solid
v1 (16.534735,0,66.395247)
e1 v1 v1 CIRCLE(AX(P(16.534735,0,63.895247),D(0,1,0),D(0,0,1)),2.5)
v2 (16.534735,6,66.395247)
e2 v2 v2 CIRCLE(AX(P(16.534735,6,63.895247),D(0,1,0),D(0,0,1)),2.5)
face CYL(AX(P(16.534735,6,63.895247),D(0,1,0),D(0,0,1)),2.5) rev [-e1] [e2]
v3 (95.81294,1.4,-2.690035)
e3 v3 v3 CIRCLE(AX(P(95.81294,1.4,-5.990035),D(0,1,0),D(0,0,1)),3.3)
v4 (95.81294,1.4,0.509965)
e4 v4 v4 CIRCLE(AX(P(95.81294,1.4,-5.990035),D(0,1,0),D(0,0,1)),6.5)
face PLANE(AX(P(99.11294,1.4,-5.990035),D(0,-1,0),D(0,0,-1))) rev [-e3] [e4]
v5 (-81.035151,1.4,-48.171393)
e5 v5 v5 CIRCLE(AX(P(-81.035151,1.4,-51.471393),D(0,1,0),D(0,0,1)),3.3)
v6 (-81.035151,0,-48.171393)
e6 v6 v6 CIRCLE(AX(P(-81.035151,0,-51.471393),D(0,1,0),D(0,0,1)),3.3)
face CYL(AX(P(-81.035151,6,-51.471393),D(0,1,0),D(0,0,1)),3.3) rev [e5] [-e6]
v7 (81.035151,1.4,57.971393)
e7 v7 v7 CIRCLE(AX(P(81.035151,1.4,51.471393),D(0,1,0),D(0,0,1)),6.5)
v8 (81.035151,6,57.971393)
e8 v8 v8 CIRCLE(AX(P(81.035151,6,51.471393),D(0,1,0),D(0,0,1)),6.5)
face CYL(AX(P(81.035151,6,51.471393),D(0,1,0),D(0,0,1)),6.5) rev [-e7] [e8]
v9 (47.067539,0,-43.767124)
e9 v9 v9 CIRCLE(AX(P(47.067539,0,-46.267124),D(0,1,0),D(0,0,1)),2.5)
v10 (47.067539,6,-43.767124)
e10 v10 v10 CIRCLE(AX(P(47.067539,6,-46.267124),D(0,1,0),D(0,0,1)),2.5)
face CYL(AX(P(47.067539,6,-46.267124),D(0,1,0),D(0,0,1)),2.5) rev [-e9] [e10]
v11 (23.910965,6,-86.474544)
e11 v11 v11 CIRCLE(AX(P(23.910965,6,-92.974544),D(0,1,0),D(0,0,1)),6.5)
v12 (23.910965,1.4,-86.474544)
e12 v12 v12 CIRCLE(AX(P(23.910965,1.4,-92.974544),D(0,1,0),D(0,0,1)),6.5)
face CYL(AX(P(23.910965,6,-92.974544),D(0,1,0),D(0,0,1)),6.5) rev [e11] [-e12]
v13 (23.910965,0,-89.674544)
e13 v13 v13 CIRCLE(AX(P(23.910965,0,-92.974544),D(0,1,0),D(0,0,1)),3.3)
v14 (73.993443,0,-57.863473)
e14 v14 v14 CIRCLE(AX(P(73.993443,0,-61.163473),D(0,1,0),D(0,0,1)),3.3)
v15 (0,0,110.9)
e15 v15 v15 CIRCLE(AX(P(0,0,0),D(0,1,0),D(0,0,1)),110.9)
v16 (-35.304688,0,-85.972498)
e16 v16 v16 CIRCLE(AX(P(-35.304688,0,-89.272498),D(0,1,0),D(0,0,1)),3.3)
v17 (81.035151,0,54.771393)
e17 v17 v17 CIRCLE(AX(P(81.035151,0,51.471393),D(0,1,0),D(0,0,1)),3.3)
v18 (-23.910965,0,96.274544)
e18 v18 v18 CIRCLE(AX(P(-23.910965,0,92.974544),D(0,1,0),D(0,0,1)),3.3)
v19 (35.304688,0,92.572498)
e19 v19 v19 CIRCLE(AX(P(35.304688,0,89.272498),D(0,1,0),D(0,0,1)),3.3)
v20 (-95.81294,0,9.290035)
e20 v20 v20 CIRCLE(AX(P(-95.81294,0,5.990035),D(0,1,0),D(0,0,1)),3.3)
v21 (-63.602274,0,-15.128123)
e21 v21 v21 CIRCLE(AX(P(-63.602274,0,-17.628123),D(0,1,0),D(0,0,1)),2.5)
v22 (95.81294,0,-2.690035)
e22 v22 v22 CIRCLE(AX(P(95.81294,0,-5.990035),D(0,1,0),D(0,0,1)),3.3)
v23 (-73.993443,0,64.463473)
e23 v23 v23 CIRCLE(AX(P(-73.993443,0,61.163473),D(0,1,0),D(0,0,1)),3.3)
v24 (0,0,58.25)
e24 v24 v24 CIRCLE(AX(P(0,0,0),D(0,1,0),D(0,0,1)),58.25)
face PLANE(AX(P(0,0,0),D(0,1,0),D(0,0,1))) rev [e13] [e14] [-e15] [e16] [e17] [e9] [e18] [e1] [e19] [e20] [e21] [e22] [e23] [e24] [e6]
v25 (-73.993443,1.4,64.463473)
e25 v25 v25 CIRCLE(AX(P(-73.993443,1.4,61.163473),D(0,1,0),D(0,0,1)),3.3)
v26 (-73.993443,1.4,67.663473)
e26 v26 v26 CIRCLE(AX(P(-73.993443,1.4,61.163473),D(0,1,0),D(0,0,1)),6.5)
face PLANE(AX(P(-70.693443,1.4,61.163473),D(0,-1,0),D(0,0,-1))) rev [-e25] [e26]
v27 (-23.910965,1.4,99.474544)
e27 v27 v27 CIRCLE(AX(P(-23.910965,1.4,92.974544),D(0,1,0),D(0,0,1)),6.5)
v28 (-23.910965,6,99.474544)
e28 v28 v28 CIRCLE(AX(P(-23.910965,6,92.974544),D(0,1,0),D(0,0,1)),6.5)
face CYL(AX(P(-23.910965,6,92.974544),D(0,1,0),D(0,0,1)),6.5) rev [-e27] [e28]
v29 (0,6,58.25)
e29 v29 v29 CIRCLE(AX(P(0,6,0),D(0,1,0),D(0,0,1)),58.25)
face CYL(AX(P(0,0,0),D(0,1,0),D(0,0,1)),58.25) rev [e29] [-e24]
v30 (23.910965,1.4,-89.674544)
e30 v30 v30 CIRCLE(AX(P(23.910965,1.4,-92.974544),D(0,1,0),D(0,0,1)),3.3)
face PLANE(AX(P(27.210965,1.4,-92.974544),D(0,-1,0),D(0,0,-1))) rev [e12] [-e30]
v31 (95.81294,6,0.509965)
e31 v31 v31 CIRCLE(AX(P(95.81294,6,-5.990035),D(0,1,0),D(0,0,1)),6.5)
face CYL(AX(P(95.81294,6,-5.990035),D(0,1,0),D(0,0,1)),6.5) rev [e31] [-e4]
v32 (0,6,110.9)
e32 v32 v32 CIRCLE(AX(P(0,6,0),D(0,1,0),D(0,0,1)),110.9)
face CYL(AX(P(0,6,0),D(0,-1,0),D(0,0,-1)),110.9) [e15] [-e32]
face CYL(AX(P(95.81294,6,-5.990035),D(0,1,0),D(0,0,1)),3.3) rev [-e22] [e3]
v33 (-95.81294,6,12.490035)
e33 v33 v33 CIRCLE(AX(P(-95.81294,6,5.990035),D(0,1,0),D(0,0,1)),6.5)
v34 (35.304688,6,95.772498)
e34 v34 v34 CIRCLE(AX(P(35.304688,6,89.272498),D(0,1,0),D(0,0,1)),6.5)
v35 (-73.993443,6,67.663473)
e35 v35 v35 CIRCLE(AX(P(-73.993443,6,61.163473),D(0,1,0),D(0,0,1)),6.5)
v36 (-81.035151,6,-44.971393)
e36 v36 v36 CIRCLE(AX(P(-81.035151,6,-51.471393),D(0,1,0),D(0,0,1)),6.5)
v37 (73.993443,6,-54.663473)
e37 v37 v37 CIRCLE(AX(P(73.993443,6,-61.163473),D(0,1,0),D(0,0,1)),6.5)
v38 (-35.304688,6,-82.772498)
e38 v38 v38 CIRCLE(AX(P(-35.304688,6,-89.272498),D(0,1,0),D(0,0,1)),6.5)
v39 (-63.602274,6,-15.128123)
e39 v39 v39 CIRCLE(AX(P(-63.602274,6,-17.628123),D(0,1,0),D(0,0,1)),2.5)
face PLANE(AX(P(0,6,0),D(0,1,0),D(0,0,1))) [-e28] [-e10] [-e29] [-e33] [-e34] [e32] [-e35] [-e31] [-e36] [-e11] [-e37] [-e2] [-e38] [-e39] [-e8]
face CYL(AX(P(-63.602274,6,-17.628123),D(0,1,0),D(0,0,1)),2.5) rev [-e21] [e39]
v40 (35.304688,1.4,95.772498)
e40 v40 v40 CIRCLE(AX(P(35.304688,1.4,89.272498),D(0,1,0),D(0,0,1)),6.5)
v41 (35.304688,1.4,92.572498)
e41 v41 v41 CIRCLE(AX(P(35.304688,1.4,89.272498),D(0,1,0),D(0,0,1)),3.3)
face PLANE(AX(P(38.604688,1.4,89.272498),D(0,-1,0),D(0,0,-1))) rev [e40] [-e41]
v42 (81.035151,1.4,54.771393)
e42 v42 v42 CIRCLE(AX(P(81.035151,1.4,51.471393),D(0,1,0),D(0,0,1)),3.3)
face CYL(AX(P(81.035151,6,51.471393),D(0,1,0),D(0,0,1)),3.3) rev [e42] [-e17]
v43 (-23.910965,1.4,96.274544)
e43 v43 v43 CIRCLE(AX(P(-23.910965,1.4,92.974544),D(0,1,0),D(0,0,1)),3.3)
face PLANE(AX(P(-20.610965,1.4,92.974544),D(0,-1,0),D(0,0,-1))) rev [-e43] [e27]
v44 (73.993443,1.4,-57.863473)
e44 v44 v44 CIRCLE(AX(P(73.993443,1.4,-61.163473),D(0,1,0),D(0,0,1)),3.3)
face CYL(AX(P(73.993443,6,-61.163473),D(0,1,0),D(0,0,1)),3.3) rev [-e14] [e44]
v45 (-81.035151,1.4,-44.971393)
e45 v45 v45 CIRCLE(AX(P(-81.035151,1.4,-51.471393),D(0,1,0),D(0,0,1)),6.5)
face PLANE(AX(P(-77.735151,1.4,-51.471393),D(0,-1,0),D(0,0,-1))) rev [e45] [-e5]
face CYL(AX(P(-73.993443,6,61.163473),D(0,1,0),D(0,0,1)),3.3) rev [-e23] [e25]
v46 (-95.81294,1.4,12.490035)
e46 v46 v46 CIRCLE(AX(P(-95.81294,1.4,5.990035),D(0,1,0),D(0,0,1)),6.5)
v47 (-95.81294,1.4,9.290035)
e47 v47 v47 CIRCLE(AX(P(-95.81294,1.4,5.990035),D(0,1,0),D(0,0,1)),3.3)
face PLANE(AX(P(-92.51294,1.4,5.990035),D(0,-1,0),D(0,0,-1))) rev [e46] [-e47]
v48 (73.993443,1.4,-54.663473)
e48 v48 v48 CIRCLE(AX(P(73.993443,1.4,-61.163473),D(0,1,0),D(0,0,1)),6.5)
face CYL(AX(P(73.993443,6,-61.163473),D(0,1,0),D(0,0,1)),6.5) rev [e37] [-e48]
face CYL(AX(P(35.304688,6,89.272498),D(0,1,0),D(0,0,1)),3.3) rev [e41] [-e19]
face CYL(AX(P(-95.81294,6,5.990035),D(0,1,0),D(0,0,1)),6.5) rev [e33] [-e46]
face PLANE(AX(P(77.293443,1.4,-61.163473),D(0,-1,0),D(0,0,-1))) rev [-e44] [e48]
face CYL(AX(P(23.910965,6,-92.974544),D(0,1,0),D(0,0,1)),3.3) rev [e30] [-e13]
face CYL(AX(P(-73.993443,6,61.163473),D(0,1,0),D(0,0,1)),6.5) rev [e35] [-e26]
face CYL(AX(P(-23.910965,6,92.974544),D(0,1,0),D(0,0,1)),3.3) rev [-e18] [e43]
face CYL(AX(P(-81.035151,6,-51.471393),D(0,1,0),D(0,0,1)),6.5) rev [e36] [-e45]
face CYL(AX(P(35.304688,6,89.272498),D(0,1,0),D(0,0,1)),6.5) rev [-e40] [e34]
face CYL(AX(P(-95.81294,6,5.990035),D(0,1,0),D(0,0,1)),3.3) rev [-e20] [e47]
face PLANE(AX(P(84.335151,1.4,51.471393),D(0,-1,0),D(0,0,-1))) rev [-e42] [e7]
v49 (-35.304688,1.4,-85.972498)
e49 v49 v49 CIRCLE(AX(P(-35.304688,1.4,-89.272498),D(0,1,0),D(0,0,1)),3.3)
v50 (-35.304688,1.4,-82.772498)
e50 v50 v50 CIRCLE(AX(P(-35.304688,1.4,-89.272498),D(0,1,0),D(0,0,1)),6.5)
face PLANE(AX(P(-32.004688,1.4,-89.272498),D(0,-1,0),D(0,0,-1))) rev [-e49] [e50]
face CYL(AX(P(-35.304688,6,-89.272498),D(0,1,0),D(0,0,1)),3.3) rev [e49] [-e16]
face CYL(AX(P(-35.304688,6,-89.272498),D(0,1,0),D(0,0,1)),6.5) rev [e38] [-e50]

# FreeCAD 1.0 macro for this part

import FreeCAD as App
import Part
import Sketcher

V = App.Vector
Q = App.Units.Quantity

doc = App.newDocument("Part")
params = doc.addObject("Spreadsheet::Sheet", "Params")
for row, (alias, value) in enumerate([
    ("sketch1_diameter", "221.8 mm"),
    ("pad1_length", "6 mm"),
    ("sketch2_diameter", "116.5 mm"),
    ("pocket1_length", "6 mm"),
    ("sketch3_diameter", "6.6 mm"),
    ("hole_diameter", "6.6 mm"),
    ("hole_cbore_diameter", "13 mm"),
    ("hole_cbore_depth", "4.6 mm"),
    ("sketch4_diameter", "5 mm"),
    ("hole2_diameter", "5 mm"),
], start=1):
    params.set(f"A{row}", alias)
    params.set(f"B{row}", "=" + value)
    params.setAlias(f"B{row}", alias)

body = doc.addObject("PartDesign::Body", "Body")

sketch1 = body.newObject("Sketcher::SketchObject", "Sketch")
sketch1.AttachmentSupport = (doc.getObject("XZ_Plane"), [""])
sketch1.MapMode = "FlatFace"
sketch1.addGeometry(Part.Circle(V(0, 0, 0), V(0, 0, 1), 110.9), False)
sketch1.addConstraint([
    Sketcher.Constraint("Coincident", 0, 3, -1, 1),
    Sketcher.Constraint("Diameter", 0, Q("221.8 mm")),
])
sketch1.setExpression("Constraints[1]", "Params.sketch1_diameter")
pad1 = body.newObject("PartDesign::Pad", "Pad")
pad1.Profile = sketch1
pad1.setExpression("Length", "Params.pad1_length")
pad1.Reversed = True

sketch2 = body.newObject("Sketcher::SketchObject", "Sketch001")
sketch2.AttachmentSupport = (doc.getObject("XZ_Plane"), [""])
sketch2.MapMode = "FlatFace"
sketch2.AttachmentOffset = App.Placement(V(0, 0, -6), App.Rotation())
sketch2.addGeometry(Part.Circle(V(0, 0, 0), V(0, 0, 1), 58.25), False)
sketch2.addConstraint([
    Sketcher.Constraint("Coincident", 0, 3, -1, 1),
    Sketcher.Constraint("Diameter", 0, Q("116.5 mm")),
])
sketch2.setExpression("Constraints[1]", "Params.sketch2_diameter")
pocket1 = body.newObject("PartDesign::Pocket", "Pocket")
pocket1.Profile = sketch2
pocket1.setExpression("Length", "Params.pocket1_length")
pocket1.Reversed = True

sketch3 = body.newObject("Sketcher::SketchObject", "Sketch002")
sketch3.AttachmentSupport = (doc.getObject("XZ_Plane"), [""])
sketch3.MapMode = "FlatFace"
sketch3.AttachmentOffset = App.Placement(V(0, 0, -6), App.Rotation())
sketch3.addGeometry([
    Part.Circle(V(-35.304688, -89.272498, 0), V(0, 0, 1), 3.3),
    Part.Circle(V(23.910965, -92.974544, 0), V(0, 0, 1), 3.3),
    Part.Circle(V(73.993443, -61.163473, 0), V(0, 0, 1), 3.3),
    Part.Circle(V(95.81294, -5.990035, 0), V(0, 0, 1), 3.3),
    Part.Circle(V(81.035151, 51.471393, 0), V(0, 0, 1), 3.3),
    Part.Circle(V(35.304688, 89.272498, 0), V(0, 0, 1), 3.3),
    Part.Circle(V(-23.910965, 92.974544, 0), V(0, 0, 1), 3.3),
    Part.Circle(V(-73.993443, 61.163473, 0), V(0, 0, 1), 3.3),
    Part.Circle(V(-95.81294, 5.990035, 0), V(0, 0, 1), 3.3),
    Part.Circle(V(-81.035151, -51.471393, 0), V(0, 0, 1), 3.3),
    Part.Circle(V(0, 0, 0), V(0, 0, 1), 3.3),
], False)
sketch3.addConstraint([
    Sketcher.Constraint("Coincident", 10, 3, -1, 1),
    Sketcher.Constraint("Equal", 0, 1),
    Sketcher.Constraint("Equal", 1, 2),
    Sketcher.Constraint("Equal", 2, 3),
    Sketcher.Constraint("Equal", 3, 4),
    Sketcher.Constraint("Equal", 4, 5),
    Sketcher.Constraint("Equal", 5, 6),
    Sketcher.Constraint("Equal", 6, 7),
    Sketcher.Constraint("Equal", 7, 8),
    Sketcher.Constraint("Equal", 8, 9),
    Sketcher.Constraint("Equal", 9, 10),
    Sketcher.Constraint("Symmetric", 0, 3, 5, 3, -1, 1),
    Sketcher.Constraint("Symmetric", 1, 3, 6, 3, -1, 1),
    Sketcher.Constraint("Symmetric", 2, 3, 7, 3, -1, 1),
    Sketcher.Constraint("Symmetric", 3, 3, 8, 3, -1, 1),
    Sketcher.Constraint("Symmetric", 4, 3, 9, 3, -1, 1),
    Sketcher.Constraint("Diameter", 0, Q("6.6 mm")),
    Sketcher.Constraint("DistanceY", 0, 3, -1, 1, Q("89.272498 mm")),
    Sketcher.Constraint("DistanceX", 0, 3, -1, 1, Q("35.304688 mm")),
    Sketcher.Constraint("DistanceX", -1, 1, 3, 3, Q("95.81294 mm")),
    Sketcher.Constraint("DistanceX", -1, 1, 4, 3, Q("81.035151 mm")),
    Sketcher.Constraint("DistanceY", 1, 3, 2, 3, Q("31.81107 mm")),
    Sketcher.Constraint("DistanceX", 0, 3, 2, 3, Q("109.298131 mm")),
    Sketcher.Constraint("DistanceY", 2, 3, 3, 3, Q("55.173438 mm")),
    Sketcher.Constraint("DistanceY", 0, 3, 4, 3, Q("140.743892 mm")),
    Sketcher.Constraint("DistanceY", 2, 3, 5, 3, Q("150.435972 mm")),
    Sketcher.Constraint("DistanceX", -1, 1, 1, 3, Q("23.910965 mm")),
])
sketch3.setExpression("Constraints[16]", "Params.sketch3_diameter")
doc.recompute()
hole = body.newObject("PartDesign::Hole", "Hole")
hole.Profile = sketch3
hole.ThreadType = "None"
hole.setExpression("Diameter", "Params.hole_diameter")
hole.DepthType = "ThroughAll"
hole.HoleCutType = "Counterbore"
hole.setExpression("HoleCutDiameter", "Params.hole_cbore_diameter")
hole.setExpression("HoleCutDepth", "Params.hole_cbore_depth")
hole.Reversed = True

sketch4 = body.newObject("Sketcher::SketchObject", "Sketch003")
sketch4.AttachmentSupport = (doc.getObject("XZ_Plane"), [""])
sketch4.MapMode = "FlatFace"
sketch4.AttachmentOffset = App.Placement(V(0, 0, -6), App.Rotation())
sketch4.addGeometry([
    Part.Circle(V(-63.602274, -17.628123, 0), V(0, 0, 1), 2.5),
    Part.Circle(V(47.067539, -46.267124, 0), V(0, 0, 1), 2.5),
    Part.Circle(V(16.534735, 63.895247, 0), V(0, 0, 1), 2.5),
    Part.Circle(V(0, 0, 0), V(0, 0, 1), 2.5),
], False)
sketch4.addConstraint([
    Sketcher.Constraint("Coincident", 3, 3, -1, 1),
    Sketcher.Constraint("Equal", 0, 1),
    Sketcher.Constraint("Equal", 1, 2),
    Sketcher.Constraint("Equal", 2, 3),
    Sketcher.Constraint("Diameter", 0, Q("5 mm")),
    Sketcher.Constraint("DistanceY", 1, 3, 0, 3, Q("28.639001 mm")),
    Sketcher.Constraint("DistanceX", -1, 1, 1, 3, Q("47.067539 mm")),
    Sketcher.Constraint("DistanceX", 0, 3, 2, 3, Q("80.137009 mm")),
    Sketcher.Constraint("DistanceY", 0, 3, 2, 3, Q("81.52337 mm")),
    Sketcher.Constraint("DistanceX", 0, 3, -1, 1, Q("63.602274 mm")),
    Sketcher.Constraint("DistanceY", 0, 3, -1, 1, Q("17.628123 mm")),
])
sketch4.setExpression("Constraints[4]", "Params.sketch4_diameter")
doc.recompute()
hole2 = body.newObject("PartDesign::Hole", "Hole001")
hole2.Profile = sketch4
hole2.ThreadType = "None"
hole2.setExpression("Diameter", "Params.hole2_diameter")
hole2.DepthType = "ThroughAll"
hole2.Reversed = True

doc.recompute()
